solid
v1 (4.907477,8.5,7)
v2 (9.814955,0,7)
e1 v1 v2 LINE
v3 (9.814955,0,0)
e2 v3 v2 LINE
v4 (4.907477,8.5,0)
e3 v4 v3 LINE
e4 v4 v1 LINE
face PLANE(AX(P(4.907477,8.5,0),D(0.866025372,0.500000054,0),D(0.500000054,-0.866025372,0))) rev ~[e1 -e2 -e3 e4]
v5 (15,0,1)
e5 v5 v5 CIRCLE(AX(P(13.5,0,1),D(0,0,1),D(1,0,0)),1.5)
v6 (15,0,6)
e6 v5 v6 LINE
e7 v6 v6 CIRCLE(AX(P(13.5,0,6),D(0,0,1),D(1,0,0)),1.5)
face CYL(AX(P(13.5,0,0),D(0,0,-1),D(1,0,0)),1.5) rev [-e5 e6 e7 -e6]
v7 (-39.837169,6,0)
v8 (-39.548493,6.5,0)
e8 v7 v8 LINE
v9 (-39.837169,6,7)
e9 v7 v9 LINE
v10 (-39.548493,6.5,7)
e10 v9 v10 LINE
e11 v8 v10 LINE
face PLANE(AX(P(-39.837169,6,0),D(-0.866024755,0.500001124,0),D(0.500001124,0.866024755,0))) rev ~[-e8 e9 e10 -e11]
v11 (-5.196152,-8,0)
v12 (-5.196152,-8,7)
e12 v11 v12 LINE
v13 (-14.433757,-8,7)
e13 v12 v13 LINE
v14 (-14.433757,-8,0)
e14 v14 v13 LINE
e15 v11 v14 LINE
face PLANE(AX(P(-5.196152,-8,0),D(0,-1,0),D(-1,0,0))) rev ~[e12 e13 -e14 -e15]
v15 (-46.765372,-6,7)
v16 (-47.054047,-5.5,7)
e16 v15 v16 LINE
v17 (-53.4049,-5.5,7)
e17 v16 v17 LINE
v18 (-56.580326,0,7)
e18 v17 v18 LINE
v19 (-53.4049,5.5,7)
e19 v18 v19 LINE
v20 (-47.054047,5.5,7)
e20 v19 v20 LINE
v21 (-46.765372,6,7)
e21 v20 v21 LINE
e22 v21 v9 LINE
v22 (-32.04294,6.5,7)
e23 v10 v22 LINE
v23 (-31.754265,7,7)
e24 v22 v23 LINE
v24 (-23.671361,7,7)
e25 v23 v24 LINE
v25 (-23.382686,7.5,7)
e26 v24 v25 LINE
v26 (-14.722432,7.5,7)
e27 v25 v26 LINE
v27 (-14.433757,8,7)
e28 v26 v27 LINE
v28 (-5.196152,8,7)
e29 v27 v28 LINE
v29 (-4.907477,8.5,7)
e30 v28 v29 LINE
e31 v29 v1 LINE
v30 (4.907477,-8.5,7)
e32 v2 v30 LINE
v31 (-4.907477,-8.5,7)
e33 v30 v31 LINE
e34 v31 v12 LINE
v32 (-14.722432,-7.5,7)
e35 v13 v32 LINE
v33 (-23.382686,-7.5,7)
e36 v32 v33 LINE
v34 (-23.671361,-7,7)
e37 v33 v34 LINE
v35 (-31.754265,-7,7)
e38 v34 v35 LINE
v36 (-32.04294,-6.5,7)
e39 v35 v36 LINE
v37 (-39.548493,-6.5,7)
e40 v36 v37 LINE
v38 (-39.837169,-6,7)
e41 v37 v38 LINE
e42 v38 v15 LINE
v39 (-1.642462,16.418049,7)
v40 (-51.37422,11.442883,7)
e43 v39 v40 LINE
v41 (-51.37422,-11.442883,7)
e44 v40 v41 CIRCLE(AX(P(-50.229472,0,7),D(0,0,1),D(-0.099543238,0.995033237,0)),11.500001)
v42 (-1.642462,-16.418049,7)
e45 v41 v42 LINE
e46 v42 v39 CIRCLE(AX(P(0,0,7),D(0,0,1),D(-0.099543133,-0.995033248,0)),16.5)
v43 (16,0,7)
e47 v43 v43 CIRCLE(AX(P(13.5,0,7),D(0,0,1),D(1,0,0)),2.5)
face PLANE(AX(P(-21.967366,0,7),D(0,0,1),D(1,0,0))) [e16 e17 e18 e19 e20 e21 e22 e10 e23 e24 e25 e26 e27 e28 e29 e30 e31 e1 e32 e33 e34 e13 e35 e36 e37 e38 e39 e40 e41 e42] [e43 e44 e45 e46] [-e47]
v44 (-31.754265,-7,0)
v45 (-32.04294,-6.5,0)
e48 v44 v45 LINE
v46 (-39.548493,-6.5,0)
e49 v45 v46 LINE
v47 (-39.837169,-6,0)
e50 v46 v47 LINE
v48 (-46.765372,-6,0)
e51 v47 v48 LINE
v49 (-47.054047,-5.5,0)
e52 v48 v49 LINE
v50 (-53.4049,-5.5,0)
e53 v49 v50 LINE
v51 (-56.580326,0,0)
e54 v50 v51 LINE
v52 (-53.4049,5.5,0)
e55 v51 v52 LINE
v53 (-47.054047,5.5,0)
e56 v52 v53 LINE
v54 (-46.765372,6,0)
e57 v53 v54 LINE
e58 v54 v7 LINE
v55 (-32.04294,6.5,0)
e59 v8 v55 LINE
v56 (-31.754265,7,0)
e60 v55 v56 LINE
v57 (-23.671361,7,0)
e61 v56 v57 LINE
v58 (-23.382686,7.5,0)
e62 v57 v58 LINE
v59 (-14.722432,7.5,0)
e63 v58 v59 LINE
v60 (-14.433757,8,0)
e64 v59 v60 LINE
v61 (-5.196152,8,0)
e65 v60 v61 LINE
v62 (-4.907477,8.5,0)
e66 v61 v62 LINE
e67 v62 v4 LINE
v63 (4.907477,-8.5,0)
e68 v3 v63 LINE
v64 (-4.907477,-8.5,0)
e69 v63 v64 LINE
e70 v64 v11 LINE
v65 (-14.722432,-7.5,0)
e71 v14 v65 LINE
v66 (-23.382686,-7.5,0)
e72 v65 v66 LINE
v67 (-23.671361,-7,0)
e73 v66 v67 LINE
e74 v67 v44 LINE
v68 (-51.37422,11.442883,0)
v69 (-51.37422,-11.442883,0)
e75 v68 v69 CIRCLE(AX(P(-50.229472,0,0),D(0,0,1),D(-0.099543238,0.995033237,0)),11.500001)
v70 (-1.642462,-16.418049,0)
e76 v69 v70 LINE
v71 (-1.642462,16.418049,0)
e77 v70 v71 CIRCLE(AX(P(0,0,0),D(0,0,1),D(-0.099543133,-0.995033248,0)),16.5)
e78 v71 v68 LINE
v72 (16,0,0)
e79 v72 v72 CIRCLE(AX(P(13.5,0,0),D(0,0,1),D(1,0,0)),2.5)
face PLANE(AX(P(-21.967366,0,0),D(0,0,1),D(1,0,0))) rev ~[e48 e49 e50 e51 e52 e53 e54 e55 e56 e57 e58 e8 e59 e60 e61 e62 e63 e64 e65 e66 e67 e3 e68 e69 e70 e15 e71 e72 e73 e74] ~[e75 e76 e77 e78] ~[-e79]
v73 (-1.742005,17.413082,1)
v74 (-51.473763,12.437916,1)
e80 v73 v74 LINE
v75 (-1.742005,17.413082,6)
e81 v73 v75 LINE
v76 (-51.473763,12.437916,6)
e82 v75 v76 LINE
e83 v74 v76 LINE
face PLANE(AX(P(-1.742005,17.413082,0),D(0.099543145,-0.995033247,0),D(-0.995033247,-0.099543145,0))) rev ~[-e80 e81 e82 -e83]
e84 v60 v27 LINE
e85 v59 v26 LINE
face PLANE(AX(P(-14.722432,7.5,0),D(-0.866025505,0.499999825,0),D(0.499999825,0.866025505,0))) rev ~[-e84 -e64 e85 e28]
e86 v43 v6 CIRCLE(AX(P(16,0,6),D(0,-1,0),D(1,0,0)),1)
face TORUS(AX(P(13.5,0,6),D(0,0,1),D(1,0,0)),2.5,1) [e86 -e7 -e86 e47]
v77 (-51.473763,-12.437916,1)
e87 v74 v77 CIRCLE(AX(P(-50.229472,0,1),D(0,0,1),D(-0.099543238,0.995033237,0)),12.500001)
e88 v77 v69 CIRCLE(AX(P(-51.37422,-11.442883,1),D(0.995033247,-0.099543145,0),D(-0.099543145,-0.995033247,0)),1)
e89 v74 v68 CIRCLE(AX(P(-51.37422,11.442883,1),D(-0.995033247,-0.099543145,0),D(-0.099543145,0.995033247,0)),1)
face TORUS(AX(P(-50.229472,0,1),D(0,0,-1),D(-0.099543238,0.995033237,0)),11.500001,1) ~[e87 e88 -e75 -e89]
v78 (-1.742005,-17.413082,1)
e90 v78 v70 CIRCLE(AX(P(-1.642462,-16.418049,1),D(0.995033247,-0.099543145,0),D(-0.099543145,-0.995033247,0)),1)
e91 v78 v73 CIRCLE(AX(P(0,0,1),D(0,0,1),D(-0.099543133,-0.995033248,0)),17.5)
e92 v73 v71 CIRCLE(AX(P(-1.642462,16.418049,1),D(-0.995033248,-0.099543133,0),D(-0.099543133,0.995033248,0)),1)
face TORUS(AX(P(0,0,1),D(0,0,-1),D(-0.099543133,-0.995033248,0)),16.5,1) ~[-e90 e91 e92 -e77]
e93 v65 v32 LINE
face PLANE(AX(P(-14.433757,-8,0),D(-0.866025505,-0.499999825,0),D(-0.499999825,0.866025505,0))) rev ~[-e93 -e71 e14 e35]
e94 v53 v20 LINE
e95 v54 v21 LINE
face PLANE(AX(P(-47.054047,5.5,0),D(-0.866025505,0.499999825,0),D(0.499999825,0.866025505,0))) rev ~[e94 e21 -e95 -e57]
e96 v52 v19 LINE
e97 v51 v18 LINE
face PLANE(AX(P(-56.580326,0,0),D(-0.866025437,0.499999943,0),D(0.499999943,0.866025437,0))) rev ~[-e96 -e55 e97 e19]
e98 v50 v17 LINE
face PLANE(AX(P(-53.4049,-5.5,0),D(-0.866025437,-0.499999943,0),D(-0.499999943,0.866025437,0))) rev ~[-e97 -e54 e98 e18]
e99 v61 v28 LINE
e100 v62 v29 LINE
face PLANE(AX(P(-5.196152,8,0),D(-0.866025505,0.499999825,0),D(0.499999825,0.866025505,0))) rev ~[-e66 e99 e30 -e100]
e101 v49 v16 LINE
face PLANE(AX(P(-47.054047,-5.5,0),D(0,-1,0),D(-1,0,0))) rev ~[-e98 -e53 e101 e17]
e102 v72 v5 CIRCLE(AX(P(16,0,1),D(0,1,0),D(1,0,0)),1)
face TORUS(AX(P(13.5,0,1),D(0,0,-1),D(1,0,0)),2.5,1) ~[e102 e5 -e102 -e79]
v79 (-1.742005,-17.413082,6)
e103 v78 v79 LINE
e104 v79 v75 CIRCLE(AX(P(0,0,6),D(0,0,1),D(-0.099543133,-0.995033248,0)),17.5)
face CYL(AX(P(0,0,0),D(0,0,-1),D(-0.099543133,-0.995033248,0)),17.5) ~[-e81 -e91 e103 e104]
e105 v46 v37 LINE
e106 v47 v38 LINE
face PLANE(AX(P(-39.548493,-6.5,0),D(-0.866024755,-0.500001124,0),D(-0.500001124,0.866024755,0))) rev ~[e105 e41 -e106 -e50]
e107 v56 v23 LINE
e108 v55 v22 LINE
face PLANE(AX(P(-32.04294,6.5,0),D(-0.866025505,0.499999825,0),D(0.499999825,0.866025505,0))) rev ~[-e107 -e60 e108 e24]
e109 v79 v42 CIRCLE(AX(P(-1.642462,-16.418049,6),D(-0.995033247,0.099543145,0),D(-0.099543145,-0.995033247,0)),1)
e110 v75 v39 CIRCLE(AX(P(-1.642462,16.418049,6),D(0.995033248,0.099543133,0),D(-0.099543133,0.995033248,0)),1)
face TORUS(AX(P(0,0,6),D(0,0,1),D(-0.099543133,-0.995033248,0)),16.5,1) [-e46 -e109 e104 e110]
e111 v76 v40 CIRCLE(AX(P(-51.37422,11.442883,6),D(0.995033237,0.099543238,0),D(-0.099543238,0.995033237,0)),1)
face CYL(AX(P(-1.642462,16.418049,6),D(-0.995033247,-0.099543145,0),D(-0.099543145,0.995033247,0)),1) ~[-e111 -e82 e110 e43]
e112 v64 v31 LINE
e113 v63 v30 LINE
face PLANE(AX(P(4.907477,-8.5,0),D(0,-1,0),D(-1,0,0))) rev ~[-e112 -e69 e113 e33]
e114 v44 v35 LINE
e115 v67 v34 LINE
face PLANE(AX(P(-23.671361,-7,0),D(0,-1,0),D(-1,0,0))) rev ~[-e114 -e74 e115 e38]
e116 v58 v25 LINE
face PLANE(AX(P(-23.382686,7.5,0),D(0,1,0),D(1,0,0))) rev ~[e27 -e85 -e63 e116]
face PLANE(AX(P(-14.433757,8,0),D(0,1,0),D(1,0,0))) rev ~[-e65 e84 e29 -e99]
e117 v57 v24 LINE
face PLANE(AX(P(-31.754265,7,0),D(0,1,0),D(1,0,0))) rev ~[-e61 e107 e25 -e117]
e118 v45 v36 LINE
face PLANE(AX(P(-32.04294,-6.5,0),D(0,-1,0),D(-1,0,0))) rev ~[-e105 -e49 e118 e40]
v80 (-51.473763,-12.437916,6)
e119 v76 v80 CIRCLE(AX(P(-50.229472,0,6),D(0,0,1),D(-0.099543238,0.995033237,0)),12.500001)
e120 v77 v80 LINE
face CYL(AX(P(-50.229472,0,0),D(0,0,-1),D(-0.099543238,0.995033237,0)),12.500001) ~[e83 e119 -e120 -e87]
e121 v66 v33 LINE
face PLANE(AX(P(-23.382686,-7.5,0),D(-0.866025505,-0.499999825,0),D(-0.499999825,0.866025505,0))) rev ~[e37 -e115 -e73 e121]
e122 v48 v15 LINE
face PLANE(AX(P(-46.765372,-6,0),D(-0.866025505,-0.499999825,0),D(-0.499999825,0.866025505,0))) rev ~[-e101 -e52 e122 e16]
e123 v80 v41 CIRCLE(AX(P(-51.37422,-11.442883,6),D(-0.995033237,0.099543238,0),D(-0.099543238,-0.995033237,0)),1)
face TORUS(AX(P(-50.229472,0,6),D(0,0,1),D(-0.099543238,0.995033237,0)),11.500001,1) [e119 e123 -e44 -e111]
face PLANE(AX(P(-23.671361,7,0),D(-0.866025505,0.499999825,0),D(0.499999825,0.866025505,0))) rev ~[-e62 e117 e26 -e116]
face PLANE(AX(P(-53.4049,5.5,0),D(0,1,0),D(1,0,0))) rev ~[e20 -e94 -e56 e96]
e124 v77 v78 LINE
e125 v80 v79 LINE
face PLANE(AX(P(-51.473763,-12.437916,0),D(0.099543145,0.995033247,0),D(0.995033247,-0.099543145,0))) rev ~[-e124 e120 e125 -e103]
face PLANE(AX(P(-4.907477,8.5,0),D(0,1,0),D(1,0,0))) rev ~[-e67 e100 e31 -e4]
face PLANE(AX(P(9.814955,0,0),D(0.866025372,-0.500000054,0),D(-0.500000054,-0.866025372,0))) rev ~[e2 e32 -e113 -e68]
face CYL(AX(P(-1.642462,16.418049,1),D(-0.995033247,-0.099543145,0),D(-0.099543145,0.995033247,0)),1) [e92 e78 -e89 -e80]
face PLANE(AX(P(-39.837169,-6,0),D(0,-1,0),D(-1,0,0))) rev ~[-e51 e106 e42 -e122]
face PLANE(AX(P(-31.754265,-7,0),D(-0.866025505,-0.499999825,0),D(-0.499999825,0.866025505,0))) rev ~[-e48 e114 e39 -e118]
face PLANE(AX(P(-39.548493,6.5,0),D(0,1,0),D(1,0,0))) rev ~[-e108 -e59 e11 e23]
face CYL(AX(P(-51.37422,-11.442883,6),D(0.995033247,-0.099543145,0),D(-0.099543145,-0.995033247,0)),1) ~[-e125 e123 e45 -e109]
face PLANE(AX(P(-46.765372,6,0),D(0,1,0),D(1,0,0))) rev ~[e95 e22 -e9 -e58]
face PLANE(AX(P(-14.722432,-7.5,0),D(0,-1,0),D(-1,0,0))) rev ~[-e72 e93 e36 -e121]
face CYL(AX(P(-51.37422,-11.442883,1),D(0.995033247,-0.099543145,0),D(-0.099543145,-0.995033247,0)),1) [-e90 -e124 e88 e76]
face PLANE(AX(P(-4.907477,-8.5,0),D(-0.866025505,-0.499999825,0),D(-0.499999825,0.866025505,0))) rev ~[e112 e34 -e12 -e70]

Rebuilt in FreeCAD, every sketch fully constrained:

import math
import FreeCAD as App
import Part
import Sketcher

V = App.Vector
Q = App.Units.Quantity


def edges_at(feature, points):
    """Names of the edges that pass closest to the given points."""
    edges = feature.Shape.Edges
    near = lambda p: min(range(len(edges)), key=lambda i: edges[i].distToShape(Part.Vertex(*p))[0])
    return sorted({f"Edge{near(p) + 1}" for p in points})

doc = App.newDocument("Part")
params = doc.addObject("Spreadsheet::Sheet", "Params")
for row, (alias, value) in enumerate([
    ("sketch1_diameter", "3 mm"),
    ("sketch1_radius", "17.5 mm"),
    ("sketch1_radius2", "12.500001 mm"),
    ("pad1_length", "7 mm"),
    ("fillet_radius", "1 mm"),
    ("fillet2_radius", "1 mm"),
], start=1):
    params.set(f"A{row}", alias)
    params.set(f"B{row}", "=" + value)
    params.setAlias(f"B{row}", alias)

body = doc.addObject("PartDesign::Body", "Body")

# Sketch on XY plane
sketch1 = body.newObject("Sketcher::SketchObject", "Sketch")
sketch1.AttachmentSupport = (doc.getObject("XY_Plane"), [""])
sketch1.MapMode = "FlatFace"
sketch1.addGeometry(Part.LineSegment(V(-51.5, -12.4, 0), V(-1.7, -17.4, 0)), False)
sketch1.addGeometry(Part.ArcOfCircle(Part.Circle(V(0, 0, 0), V(0, 0, 1), 17.5), math.radians(-96), math.radians(96)), False)
sketch1.addGeometry(Part.LineSegment(V(-1.7, 17.4, 0), V(-51.5, 12.4, 0)), False)
sketch1.addGeometry(Part.ArcOfCircle(Part.Circle(V(-50.2, 0, 0), V(0, 0, 1), 12.5), math.radians(96), math.radians(264)), False)
sketch1.addGeometry(Part.LineSegment(V(-4.9, 8.5, 0), V(4.9, 8.5, 0)), False)
sketch1.addGeometry(Part.LineSegment(V(4.9, 8.5, 0), V(9.8, 0, 0)), False)
sketch1.addGeometry(Part.LineSegment(V(9.8, 0, 0), V(4.9, -8.5, 0)), False)
sketch1.addGeometry(Part.LineSegment(V(4.9, -8.5, 0), V(-4.9, -8.5, 0)), False)
sketch1.addGeometry(Part.LineSegment(V(-4.9, -8.5, 0), V(-5.2, -8, 0)), False)
sketch1.addGeometry(Part.LineSegment(V(-5.2, -8, 0), V(-14.4, -8, 0)), False)
sketch1.addGeometry(Part.LineSegment(V(-14.4, -8, 0), V(-14.7, -7.5, 0)), False)
sketch1.addGeometry(Part.LineSegment(V(-14.7, -7.5, 0), V(-23.4, -7.5, 0)), False)
sketch1.addGeometry(Part.LineSegment(V(-23.4, -7.5, 0), V(-23.7, -7, 0)), False)
sketch1.addGeometry(Part.LineSegment(V(-23.7, -7, 0), V(-31.8, -7, 0)), False)
sketch1.addGeometry(Part.LineSegment(V(-31.8, -7, 0), V(-32, -6.5, 0)), False)
sketch1.addGeometry(Part.LineSegment(V(-32, -6.5, 0), V(-39.5, -6.5, 0)), False)
sketch1.addGeometry(Part.LineSegment(V(-39.5, -6.5, 0), V(-39.8, -6, 0)), False)
sketch1.addGeometry(Part.LineSegment(V(-39.8, -6, 0), V(-46.8, -6, 0)), False)
sketch1.addGeometry(Part.LineSegment(V(-46.8, -6, 0), V(-47.1, -5.5, 0)), False)
sketch1.addGeometry(Part.LineSegment(V(-47.1, -5.5, 0), V(-53.4, -5.5, 0)), False)
sketch1.addGeometry(Part.LineSegment(V(-53.4, -5.5, 0), V(-56.6, 0, 0)), False)
sketch1.addGeometry(Part.LineSegment(V(-56.6, 0, 0), V(-53.4, 5.5, 0)), False)
sketch1.addGeometry(Part.LineSegment(V(-53.4, 5.5, 0), V(-47.1, 5.5, 0)), False)
sketch1.addGeometry(Part.LineSegment(V(-47.1, 5.5, 0), V(-46.8, 6, 0)), False)
sketch1.addGeometry(Part.LineSegment(V(-46.8, 6, 0), V(-39.8, 6, 0)), False)
sketch1.addGeometry(Part.LineSegment(V(-39.8, 6, 0), V(-39.5, 6.5, 0)), False)
sketch1.addGeometry(Part.LineSegment(V(-39.5, 6.5, 0), V(-32, 6.5, 0)), False)
sketch1.addGeometry(Part.LineSegment(V(-32, 6.5, 0), V(-31.8, 7, 0)), False)
sketch1.addGeometry(Part.LineSegment(V(-31.8, 7, 0), V(-23.7, 7, 0)), False)
sketch1.addGeometry(Part.LineSegment(V(-23.7, 7, 0), V(-23.4, 7.5, 0)), False)
sketch1.addGeometry(Part.LineSegment(V(-23.4, 7.5, 0), V(-14.7, 7.5, 0)), False)
sketch1.addGeometry(Part.LineSegment(V(-14.7, 7.5, 0), V(-14.4, 8, 0)), False)
sketch1.addGeometry(Part.LineSegment(V(-14.4, 8, 0), V(-5.2, 8, 0)), False)
sketch1.addGeometry(Part.LineSegment(V(-5.2, 8, 0), V(-4.9, 8.5, 0)), False)
sketch1.addGeometry(Part.Circle(V(13.5, 0, 0), V(0, 0, 1), 1.5), False)
sketch1.addConstraint(Sketcher.Constraint("Tangent", 0, 2, 1, 1))
sketch1.addConstraint(Sketcher.Constraint("Tangent", 1, 2, 2, 1))
sketch1.addConstraint(Sketcher.Constraint("Tangent", 2, 2, 3, 1))
sketch1.addConstraint(Sketcher.Constraint("Tangent", 3, 2, 0, 1))
sketch1.addConstraint(Sketcher.Constraint("Coincident", 4, 2, 5, 1))
sketch1.addConstraint(Sketcher.Constraint("Coincident", 5, 2, 6, 1))
sketch1.addConstraint(Sketcher.Constraint("Coincident", 6, 2, 7, 1))
sketch1.addConstraint(Sketcher.Constraint("Coincident", 7, 2, 8, 1))
sketch1.addConstraint(Sketcher.Constraint("Coincident", 8, 2, 9, 1))
sketch1.addConstraint(Sketcher.Constraint("Coincident", 9, 2, 10, 1))
sketch1.addConstraint(Sketcher.Constraint("Coincident", 10, 2, 11, 1))
sketch1.addConstraint(Sketcher.Constraint("Coincident", 11, 2, 12, 1))
sketch1.addConstraint(Sketcher.Constraint("Coincident", 12, 2, 13, 1))
sketch1.addConstraint(Sketcher.Constraint("Coincident", 13, 2, 14, 1))
sketch1.addConstraint(Sketcher.Constraint("Coincident", 14, 2, 15, 1))
sketch1.addConstraint(Sketcher.Constraint("Coincident", 15, 2, 16, 1))
sketch1.addConstraint(Sketcher.Constraint("Coincident", 16, 2, 17, 1))
sketch1.addConstraint(Sketcher.Constraint("Coincident", 17, 2, 18, 1))
sketch1.addConstraint(Sketcher.Constraint("Coincident", 18, 2, 19, 1))
sketch1.addConstraint(Sketcher.Constraint("Coincident", 19, 2, 20, 1))
sketch1.addConstraint(Sketcher.Constraint("Coincident", 20, 2, 21, 1))
sketch1.addConstraint(Sketcher.Constraint("Coincident", 21, 2, 22, 1))
sketch1.addConstraint(Sketcher.Constraint("Coincident", 22, 2, 23, 1))
sketch1.addConstraint(Sketcher.Constraint("Coincident", 23, 2, 24, 1))
sketch1.addConstraint(Sketcher.Constraint("Coincident", 24, 2, 25, 1))
sketch1.addConstraint(Sketcher.Constraint("Coincident", 25, 2, 26, 1))
sketch1.addConstraint(Sketcher.Constraint("Coincident", 26, 2, 27, 1))
sketch1.addConstraint(Sketcher.Constraint("Coincident", 27, 2, 28, 1))
sketch1.addConstraint(Sketcher.Constraint("Coincident", 28, 2, 29, 1))
sketch1.addConstraint(Sketcher.Constraint("Coincident", 29, 2, 30, 1))
sketch1.addConstraint(Sketcher.Constraint("Coincident", 30, 2, 31, 1))
sketch1.addConstraint(Sketcher.Constraint("Coincident", 31, 2, 32, 1))
sketch1.addConstraint(Sketcher.Constraint("Coincident", 32, 2, 33, 1))
sketch1.addConstraint(Sketcher.Constraint("Coincident", 33, 2, 4, 1))
sketch1.addConstraint(Sketcher.Constraint("Horizontal", 4))
sketch1.addConstraint(Sketcher.Constraint("Horizontal", 7))
sketch1.addConstraint(Sketcher.Constraint("Horizontal", 9))
sketch1.addConstraint(Sketcher.Constraint("Horizontal", 11))
sketch1.addConstraint(Sketcher.Constraint("Horizontal", 13))
sketch1.addConstraint(Sketcher.Constraint("Horizontal", 15))
sketch1.addConstraint(Sketcher.Constraint("Horizontal", 17))
sketch1.addConstraint(Sketcher.Constraint("Horizontal", 19))
sketch1.addConstraint(Sketcher.Constraint("Horizontal", 22))
sketch1.addConstraint(Sketcher.Constraint("Horizontal", 24))
sketch1.addConstraint(Sketcher.Constraint("Horizontal", 26))
sketch1.addConstraint(Sketcher.Constraint("Horizontal", 28))
sketch1.addConstraint(Sketcher.Constraint("Horizontal", 30))
sketch1.addConstraint(Sketcher.Constraint("Horizontal", 32))
sketch1.addConstraint(Sketcher.Constraint("Coincident", 1, 3, -1, 1))
sketch1.addConstraint(Sketcher.Constraint("Symmetric", 4, 2, 7, 2, -1, 1))
sketch1.addConstraint(Sketcher.Constraint("Symmetric", 19, 2, 21, 2, -1))
sketch1.addConstraint(Sketcher.Constraint("Symmetric", 17, 2, 23, 2, -1))
sketch1.addConstraint(Sketcher.Constraint("Symmetric", 15, 2, 25, 2, -1))
sketch1.addConstraint(Sketcher.Constraint("Symmetric", 13, 2, 27, 2, -1))
sketch1.addConstraint(Sketcher.Constraint("Symmetric", 11, 2, 29, 2, -1))
sketch1.addConstraint(Sketcher.Constraint("Symmetric", 9, 2, 31, 2, -1))
sketch1.addConstraint(Sketcher.Constraint("PointOnObject", 3, 3, -1))
sketch1.addConstraint(Sketcher.Constraint("PointOnObject", 34, 3, -1))
sketch1.addConstraint(Sketcher.Constraint("PointOnObject", 5, 2, -1))
sketch1.addConstraint(Sketcher.Constraint("PointOnObject", 20, 2, -1))
sketch1.addConstraint(Sketcher.Constraint("Parallel", 5, 8))
sketch1.addConstraint(Sketcher.Constraint("Parallel", 8, 10))
sketch1.addConstraint(Sketcher.Constraint("Parallel", 10, 12))
sketch1.addConstraint(Sketcher.Constraint("Parallel", 12, 14))
sketch1.addConstraint(Sketcher.Constraint("Parallel", 14, 16))
sketch1.addConstraint(Sketcher.Constraint("Parallel", 16, 18))
sketch1.addConstraint(Sketcher.Constraint("Parallel", 18, 20))
sketch1.addConstraint(Sketcher.Constraint("Parallel", 6, 21))
sketch1.addConstraint(Sketcher.Constraint("Parallel", 21, 23))
sketch1.addConstraint(Sketcher.Constraint("Parallel", 23, 25))
sketch1.addConstraint(Sketcher.Constraint("Parallel", 25, 27))
sketch1.addConstraint(Sketcher.Constraint("Parallel", 27, 29))
sketch1.addConstraint(Sketcher.Constraint("Parallel", 29, 31))
sketch1.addConstraint(Sketcher.Constraint("Parallel", 31, 33))
sketch1.addConstraint(Sketcher.Constraint("Vertical", 8, 2, 32, 2))
sketch1.addConstraint(Sketcher.Constraint("Equal", 8, 10))
sketch1.addConstraint(Sketcher.Constraint("Equal", 10, 12))
sketch1.addConstraint(Sketcher.Constraint("Equal", 12, 14))
sketch1.addConstraint(Sketcher.Constraint("Equal", 14, 16))
sketch1.addConstraint(Sketcher.Constraint("Equal", 16, 18))
sketch1.addConstraint(Sketcher.Constraint("Diameter", 34, 3.0))
sketch1.addConstraint(Sketcher.Constraint("Radius", 1, 17.5))
sketch1.addConstraint(Sketcher.Constraint("Radius", 3, 12.500001))
sketch1.addConstraint(Sketcher.Constraint("Angle", 5, Q("-59.999996 deg")))
sketch1.addConstraint(Sketcher.Constraint("DistanceY", 8, 2, -1, 1, 8.0))
sketch1.addConstraint(Sketcher.Constraint("DistanceY", 12, 2, -1, 1, 7.0))
sketch1.addConstraint(Sketcher.Constraint("DistanceX", -1, 1, 34, 3, 13.5))
sketch1.addConstraint(Sketcher.Constraint("DistanceX", 19, 2, -1, 1, 53.4049))
sketch1.addConstraint(Sketcher.Constraint("DistanceX", 3, 3, 17, 2, 3.4641))
sketch1.addConstraint(Sketcher.Constraint("DistanceX", 4, 1, 4, 2, 9.814954))
sketch1.addConstraint(Sketcher.Constraint("DistanceX", 9, 2, 9, 1, 9.237605))
sketch1.addConstraint(Sketcher.Constraint("DistanceX", 11, 2, 11, 1, 8.660254))
sketch1.addConstraint(Sketcher.Constraint("DistanceX", 13, 2, 13, 1, 8.082904))
sketch1.addConstraint(Sketcher.Constraint("DistanceX", 15, 2, 15, 1, 7.505553))
sketch1.addConstraint(Sketcher.Constraint("DistanceX", 17, 2, 17, 1, 6.928203))
sketch1.setExpression("Constraints[80]", "Params.sketch1_diameter")
sketch1.setExpression("Constraints[81]", "Params.sketch1_radius")
sketch1.setExpression("Constraints[82]", "Params.sketch1_radius2")
pad1 = body.newObject("PartDesign::Pad", "Pad")
pad1.Profile = sketch1
pad1.setExpression("Length", "Params.pad1_length")
doc.recompute()

fillet = body.newObject("PartDesign::Fillet", "Fillet")
fillet.Base = (pad1, edges_at(pad1, [(-62.729, 0, 7), (-26.608, -14.925, 0)]))
fillet.setExpression("Radius", "Params.fillet_radius")
doc.recompute()

fillet2 = body.newObject("PartDesign::Fillet", "Fillet001")
fillet2.Base = (fillet, edges_at(fillet, [(12, 0, 7), (12, 0, 0)]))
fillet2.setExpression("Radius", "Params.fillet2_radius")

doc.recompute()
